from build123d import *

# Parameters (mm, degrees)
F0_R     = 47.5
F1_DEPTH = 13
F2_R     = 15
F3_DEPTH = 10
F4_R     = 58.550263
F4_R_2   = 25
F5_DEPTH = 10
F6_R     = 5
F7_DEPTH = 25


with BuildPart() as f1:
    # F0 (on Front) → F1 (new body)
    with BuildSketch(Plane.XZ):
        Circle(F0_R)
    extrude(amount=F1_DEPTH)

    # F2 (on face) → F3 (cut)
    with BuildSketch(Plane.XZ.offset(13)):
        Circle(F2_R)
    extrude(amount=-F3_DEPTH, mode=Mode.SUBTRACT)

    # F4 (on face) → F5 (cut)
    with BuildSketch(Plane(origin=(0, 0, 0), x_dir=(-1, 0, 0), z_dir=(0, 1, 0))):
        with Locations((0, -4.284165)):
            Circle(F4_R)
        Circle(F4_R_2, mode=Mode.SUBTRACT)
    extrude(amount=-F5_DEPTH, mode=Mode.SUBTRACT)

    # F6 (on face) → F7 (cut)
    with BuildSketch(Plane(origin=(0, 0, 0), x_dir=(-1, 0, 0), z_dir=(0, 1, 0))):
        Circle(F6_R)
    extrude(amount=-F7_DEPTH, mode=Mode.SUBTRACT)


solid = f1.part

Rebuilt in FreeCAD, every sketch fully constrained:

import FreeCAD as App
import Part
import Sketcher
from FreeCAD import Vector

doc = App.newDocument("Part")
body = doc.addObject("PartDesign::Body", "Body")

# Sketch on XZ plane
sketch1 = body.newObject("Sketcher::SketchObject", "Sketch")
sketch1.AttachmentSupport = (doc.getObject("XZ_Plane"), [""])
sketch1.MapMode = "FlatFace"
sketch1.addGeometry(Part.Circle(Vector(0, 0, 0), Vector(0, 0, 1), 48), False)
sketch1.addConstraint([
    Sketcher.Constraint("Coincident", 0, 3, -1, 1),
    Sketcher.Constraint("Diameter", 0, 95.0),
])
pad1 = body.newObject("PartDesign::Pad", "Pad")
pad1.Profile = sketch1
pad1.Length = 13

# Sketch on XZ plane
sketch2 = body.newObject("Sketcher::SketchObject", "Sketch001")
sketch2.AttachmentSupport = (doc.getObject("XZ_Plane"), [""])
sketch2.MapMode = "FlatFace"
sketch2.AttachmentOffset = App.Placement(Vector(0, 0, 13), App.Rotation())
sketch2.addGeometry(Part.Circle(Vector(0, 0, 0), Vector(0, 0, 1), 15), False)
sketch2.addConstraint([
    Sketcher.Constraint("Coincident", 0, 3, -1, 1),
    Sketcher.Constraint("Diameter", 0, 30.0),
])
pocket1 = body.newObject("PartDesign::Pocket", "Pocket")
pocket1.Profile = sketch2
pocket1.Length = 10

# Sketch on XZ plane
sketch3 = body.newObject("Sketcher::SketchObject", "Sketch002")
sketch3.AttachmentSupport = (doc.getObject("XZ_Plane"), [""])
sketch3.MapMode = "FlatFace"
sketch3.addGeometry([
    Part.Circle(Vector(0, -4, 0), Vector(0, 0, 1), 59),
    Part.Circle(Vector(0, 0, 0), Vector(0, 0, 1), 25),
], False)
sketch3.addConstraint([
    Sketcher.Constraint("Coincident", 1, 3, -1, 1),
    Sketcher.Constraint("PointOnObject", 0, 3, -2),
    Sketcher.Constraint("Diameter", 1, 50.0),
    Sketcher.Constraint("Diameter", 0, 117.100526),
    Sketcher.Constraint("DistanceY", 0, 3, -1, 1, 4.284165),
])
pocket2 = body.newObject("PartDesign::Pocket", "Pocket001")
pocket2.Profile = sketch3
pocket2.Length = 10
pocket2.Reversed = True

# Sketch on XZ plane
sketch4 = body.newObject("Sketcher::SketchObject", "Sketch003")
sketch4.AttachmentSupport = (doc.getObject("XZ_Plane"), [""])
sketch4.MapMode = "FlatFace"
sketch4.addGeometry(Part.Circle(Vector(0, 0, 0), Vector(0, 0, 1), 5), False)
sketch4.addConstraint([
    Sketcher.Constraint("Coincident", 0, 3, -1, 1),
    Sketcher.Constraint("Diameter", 0, 10.0),
])
pocket3 = body.newObject("PartDesign::Pocket", "Pocket002")
pocket3.Profile = sketch4
pocket3.Length = 25
pocket3.Reversed = True

doc.recompute()
